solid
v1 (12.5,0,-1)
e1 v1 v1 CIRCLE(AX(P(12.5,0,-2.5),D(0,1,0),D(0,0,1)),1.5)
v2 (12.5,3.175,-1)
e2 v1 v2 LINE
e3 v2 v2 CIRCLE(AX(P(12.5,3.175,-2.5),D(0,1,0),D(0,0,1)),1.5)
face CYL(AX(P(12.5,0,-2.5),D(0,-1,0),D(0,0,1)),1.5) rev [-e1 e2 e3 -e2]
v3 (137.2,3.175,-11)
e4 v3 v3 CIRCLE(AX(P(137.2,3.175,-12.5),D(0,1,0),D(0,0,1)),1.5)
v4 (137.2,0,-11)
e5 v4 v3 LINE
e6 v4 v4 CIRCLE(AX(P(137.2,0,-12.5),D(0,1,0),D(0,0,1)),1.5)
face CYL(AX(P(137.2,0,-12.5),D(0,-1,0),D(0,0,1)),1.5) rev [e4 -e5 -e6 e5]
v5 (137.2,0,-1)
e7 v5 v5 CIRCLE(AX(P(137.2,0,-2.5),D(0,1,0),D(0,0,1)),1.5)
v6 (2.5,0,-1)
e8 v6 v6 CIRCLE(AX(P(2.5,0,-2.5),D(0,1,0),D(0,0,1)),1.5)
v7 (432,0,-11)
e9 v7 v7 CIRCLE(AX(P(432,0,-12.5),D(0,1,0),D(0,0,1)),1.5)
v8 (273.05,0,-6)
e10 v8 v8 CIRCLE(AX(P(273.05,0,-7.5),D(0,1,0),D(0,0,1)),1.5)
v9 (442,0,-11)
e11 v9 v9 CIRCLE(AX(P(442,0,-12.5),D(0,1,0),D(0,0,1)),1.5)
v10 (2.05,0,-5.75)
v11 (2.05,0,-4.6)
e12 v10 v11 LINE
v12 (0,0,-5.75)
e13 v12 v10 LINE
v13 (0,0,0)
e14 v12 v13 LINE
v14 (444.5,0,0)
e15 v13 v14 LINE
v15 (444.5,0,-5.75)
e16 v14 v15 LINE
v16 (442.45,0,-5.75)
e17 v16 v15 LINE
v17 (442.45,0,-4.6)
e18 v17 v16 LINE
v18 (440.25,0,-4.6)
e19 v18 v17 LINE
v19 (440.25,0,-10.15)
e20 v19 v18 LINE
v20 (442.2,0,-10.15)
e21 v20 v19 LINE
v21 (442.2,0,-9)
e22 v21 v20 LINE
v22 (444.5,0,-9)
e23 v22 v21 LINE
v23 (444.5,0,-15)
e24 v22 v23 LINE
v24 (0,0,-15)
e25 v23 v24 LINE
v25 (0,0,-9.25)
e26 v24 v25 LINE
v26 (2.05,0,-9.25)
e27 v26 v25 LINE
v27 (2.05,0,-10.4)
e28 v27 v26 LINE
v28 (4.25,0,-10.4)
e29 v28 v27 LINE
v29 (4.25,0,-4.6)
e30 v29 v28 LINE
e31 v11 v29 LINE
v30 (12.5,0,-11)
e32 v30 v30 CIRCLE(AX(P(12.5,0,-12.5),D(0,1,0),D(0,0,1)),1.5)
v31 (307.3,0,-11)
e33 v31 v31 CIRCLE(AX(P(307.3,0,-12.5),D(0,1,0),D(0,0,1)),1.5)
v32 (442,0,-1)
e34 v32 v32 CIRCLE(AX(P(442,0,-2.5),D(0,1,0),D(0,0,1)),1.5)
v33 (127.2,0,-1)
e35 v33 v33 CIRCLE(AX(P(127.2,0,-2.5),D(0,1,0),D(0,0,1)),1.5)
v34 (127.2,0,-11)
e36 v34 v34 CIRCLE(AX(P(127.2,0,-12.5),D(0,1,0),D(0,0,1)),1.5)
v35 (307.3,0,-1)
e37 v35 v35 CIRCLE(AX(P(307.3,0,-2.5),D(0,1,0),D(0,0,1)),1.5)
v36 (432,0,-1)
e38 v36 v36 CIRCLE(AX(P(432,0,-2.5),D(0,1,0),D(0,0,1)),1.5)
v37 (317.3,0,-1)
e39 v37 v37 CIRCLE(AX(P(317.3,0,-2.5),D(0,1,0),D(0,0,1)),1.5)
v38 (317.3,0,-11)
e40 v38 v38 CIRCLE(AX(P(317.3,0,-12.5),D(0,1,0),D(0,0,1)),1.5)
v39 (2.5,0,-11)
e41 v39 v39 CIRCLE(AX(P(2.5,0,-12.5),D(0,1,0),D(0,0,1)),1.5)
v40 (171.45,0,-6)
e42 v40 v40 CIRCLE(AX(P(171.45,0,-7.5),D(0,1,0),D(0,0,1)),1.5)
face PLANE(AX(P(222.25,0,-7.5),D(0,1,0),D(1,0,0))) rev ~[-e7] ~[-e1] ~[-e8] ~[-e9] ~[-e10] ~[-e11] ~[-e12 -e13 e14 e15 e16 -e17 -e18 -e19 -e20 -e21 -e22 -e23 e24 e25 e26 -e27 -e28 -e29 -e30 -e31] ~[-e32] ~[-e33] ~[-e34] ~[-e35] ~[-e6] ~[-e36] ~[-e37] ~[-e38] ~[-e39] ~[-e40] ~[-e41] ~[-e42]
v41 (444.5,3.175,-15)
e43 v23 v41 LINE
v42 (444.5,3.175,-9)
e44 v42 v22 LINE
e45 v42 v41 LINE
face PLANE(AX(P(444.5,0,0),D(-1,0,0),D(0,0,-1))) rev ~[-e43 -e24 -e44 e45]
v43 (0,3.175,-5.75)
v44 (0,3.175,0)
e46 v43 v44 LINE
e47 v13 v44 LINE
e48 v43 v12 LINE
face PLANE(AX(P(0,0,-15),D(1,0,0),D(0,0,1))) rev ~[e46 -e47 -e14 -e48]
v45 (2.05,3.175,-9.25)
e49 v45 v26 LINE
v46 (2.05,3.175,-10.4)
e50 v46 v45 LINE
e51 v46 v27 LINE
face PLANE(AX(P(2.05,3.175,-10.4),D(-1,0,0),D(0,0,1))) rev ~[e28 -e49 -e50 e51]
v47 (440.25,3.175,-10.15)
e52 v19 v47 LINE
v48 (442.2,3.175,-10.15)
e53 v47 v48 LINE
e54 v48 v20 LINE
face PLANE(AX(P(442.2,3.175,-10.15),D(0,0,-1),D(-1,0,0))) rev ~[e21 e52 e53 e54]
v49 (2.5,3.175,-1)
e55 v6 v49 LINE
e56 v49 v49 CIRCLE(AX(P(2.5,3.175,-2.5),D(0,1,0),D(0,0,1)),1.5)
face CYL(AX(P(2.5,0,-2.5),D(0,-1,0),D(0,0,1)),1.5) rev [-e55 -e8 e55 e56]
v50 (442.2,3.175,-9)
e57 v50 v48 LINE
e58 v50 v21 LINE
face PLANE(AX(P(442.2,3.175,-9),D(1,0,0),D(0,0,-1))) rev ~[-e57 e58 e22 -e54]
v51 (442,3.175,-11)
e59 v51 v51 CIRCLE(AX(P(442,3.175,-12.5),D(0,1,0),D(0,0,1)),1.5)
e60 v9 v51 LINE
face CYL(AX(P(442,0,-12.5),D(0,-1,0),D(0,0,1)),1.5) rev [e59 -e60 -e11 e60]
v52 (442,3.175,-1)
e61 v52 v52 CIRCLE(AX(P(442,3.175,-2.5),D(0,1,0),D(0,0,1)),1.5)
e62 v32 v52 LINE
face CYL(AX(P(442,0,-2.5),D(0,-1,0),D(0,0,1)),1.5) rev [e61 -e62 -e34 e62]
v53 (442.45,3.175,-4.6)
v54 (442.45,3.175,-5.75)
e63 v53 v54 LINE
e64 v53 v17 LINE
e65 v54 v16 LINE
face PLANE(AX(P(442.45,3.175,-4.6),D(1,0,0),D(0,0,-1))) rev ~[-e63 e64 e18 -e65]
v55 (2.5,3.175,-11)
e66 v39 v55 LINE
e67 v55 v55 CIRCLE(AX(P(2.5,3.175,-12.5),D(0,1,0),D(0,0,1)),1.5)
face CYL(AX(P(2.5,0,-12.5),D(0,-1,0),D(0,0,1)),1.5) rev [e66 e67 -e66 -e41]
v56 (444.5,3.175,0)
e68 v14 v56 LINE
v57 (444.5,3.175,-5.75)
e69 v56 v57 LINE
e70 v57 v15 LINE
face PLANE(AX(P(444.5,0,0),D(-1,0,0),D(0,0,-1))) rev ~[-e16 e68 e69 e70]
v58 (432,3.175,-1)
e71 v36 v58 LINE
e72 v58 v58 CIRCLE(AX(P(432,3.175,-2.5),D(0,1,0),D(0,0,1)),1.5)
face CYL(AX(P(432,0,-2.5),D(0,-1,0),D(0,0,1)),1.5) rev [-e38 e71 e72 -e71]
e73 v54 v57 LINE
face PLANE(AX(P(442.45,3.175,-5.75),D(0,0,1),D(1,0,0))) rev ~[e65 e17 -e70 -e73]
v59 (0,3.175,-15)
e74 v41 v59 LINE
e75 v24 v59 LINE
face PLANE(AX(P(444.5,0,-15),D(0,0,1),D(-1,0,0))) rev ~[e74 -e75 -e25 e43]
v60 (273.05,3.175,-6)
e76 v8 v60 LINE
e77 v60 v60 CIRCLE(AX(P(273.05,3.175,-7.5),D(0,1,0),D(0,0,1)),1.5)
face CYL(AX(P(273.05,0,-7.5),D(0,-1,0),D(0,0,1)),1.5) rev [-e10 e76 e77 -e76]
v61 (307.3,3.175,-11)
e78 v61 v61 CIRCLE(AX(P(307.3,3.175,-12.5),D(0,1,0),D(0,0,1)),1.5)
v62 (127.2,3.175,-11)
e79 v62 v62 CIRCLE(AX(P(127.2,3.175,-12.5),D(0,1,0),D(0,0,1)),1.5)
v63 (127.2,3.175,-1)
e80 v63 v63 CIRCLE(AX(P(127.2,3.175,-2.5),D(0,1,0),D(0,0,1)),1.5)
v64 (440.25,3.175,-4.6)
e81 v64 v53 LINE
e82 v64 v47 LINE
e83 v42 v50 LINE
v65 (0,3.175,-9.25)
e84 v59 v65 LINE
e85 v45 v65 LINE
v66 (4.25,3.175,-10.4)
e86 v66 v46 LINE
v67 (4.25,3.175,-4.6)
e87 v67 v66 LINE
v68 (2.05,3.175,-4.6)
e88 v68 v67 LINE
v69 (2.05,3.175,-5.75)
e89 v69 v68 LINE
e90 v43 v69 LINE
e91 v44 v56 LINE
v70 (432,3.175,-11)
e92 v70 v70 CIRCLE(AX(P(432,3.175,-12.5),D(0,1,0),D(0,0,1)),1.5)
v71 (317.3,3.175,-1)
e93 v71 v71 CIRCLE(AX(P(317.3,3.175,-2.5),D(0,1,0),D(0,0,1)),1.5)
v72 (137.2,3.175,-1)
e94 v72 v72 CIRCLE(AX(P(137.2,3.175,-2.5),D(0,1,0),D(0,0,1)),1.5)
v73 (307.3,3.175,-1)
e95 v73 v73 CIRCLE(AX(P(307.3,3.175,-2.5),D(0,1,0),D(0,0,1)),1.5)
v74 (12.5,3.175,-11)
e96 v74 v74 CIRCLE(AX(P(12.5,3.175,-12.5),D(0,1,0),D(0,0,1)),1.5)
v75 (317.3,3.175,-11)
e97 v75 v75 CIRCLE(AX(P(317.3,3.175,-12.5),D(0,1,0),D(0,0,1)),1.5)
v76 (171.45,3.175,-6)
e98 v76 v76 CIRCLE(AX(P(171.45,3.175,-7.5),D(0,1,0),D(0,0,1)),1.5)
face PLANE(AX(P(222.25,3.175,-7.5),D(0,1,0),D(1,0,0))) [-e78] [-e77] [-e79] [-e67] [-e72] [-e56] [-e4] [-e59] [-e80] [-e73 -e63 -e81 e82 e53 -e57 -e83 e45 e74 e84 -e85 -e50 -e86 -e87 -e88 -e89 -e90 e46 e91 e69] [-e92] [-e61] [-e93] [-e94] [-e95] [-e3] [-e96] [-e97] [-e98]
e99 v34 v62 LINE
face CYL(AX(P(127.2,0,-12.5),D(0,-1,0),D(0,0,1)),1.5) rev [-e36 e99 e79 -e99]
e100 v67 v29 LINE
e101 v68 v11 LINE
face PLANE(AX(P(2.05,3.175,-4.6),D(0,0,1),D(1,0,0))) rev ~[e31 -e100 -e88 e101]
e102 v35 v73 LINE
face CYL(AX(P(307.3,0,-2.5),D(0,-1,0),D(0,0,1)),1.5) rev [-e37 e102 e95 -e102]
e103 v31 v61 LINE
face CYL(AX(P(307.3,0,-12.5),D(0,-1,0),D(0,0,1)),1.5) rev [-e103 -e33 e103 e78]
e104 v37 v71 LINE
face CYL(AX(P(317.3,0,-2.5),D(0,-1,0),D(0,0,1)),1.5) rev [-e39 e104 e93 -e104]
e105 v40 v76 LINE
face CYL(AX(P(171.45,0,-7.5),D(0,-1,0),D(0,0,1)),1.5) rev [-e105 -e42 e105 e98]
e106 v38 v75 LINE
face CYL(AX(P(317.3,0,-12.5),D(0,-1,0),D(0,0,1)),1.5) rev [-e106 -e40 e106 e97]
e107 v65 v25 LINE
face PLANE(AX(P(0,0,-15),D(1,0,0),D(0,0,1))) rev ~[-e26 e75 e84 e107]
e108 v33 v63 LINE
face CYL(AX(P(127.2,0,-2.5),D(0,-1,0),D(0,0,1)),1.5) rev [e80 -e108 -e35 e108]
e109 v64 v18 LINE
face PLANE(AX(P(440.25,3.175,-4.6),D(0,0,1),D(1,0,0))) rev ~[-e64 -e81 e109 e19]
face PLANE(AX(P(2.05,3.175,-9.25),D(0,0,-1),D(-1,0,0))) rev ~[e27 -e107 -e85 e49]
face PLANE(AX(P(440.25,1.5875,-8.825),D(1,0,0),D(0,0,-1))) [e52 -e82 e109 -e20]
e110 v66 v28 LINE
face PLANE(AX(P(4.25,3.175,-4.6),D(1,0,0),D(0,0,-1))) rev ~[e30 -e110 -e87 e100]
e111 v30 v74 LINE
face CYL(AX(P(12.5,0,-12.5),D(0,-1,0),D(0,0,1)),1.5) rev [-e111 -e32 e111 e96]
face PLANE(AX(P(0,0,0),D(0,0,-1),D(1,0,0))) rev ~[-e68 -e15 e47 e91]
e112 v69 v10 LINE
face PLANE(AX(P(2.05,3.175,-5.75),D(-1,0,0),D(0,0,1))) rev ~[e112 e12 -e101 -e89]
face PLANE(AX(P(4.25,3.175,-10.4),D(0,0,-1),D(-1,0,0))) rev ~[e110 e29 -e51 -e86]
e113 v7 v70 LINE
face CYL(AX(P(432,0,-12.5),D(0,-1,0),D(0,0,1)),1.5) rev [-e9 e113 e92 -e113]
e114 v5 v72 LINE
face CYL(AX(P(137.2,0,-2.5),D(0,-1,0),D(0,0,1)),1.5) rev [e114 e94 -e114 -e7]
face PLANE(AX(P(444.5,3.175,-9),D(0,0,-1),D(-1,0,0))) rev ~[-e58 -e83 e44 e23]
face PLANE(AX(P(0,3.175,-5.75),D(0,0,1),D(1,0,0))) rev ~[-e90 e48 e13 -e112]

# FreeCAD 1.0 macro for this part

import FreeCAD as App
import Part
import Sketcher

doc = App.newDocument("Part")
body = doc.addObject("PartDesign::Body", "Body")

sketch1 = body.newObject("Sketcher::SketchObject", "Sketch")
sketch1.AttachmentSupport = (doc.getObject("XZ_Plane"), [""])
sketch1.MapMode = "FlatFace"
sketch1.addGeometry(Part.LineSegment(App.Vector(0, 0, 0), App.Vector(444.5, 0, 0)), False)
sketch1.addGeometry(Part.LineSegment(App.Vector(444.5, 0, 0), App.Vector(444.5, -15, 0)), False)
sketch1.addGeometry(Part.LineSegment(App.Vector(444.5, -15, 0), App.Vector(0, -15, 0)), False)
sketch1.addGeometry(Part.LineSegment(App.Vector(0, -15, 0), App.Vector(0, 0, 0)), False)
sketch1.addGeometry(Part.Circle(App.Vector(2.5, -2.5, 0), App.Vector(0, 0, 1), 1.5), False)
sketch1.addGeometry(Part.Circle(App.Vector(12.5, -2.5, 0), App.Vector(0, 0, 1), 1.5), False)
sketch1.addGeometry(Part.Circle(App.Vector(127.2, -2.5, 0), App.Vector(0, 0, 1), 1.5), False)
sketch1.addGeometry(Part.Circle(App.Vector(137.2, -2.5, 0), App.Vector(0, 0, 1), 1.5), False)
sketch1.addGeometry(Part.Circle(App.Vector(307.3, -2.5, 0), App.Vector(0, 0, 1), 1.5), False)
sketch1.addGeometry(Part.Circle(App.Vector(317.3, -2.5, 0), App.Vector(0, 0, 1), 1.5), False)
sketch1.addGeometry(Part.Circle(App.Vector(432, -2.5, 0), App.Vector(0, 0, 1), 1.5), False)
sketch1.addGeometry(Part.Circle(App.Vector(442, -2.5, 0), App.Vector(0, 0, 1), 1.5), False)
sketch1.addGeometry(Part.Circle(App.Vector(171.4, -7.5, 0), App.Vector(0, 0, 1), 1.5), False)
sketch1.addGeometry(Part.Circle(App.Vector(2.5, -12.5, 0), App.Vector(0, 0, 1), 1.5), False)
sketch1.addGeometry(Part.Circle(App.Vector(12.5, -12.5, 0), App.Vector(0, 0, 1), 1.5), False)
sketch1.addGeometry(Part.Circle(App.Vector(127.2, -12.5, 0), App.Vector(0, 0, 1), 1.5), False)
sketch1.addGeometry(Part.Circle(App.Vector(137.2, -12.5, 0), App.Vector(0, 0, 1), 1.5), False)
sketch1.addGeometry(Part.Circle(App.Vector(273.1, -7.5, 0), App.Vector(0, 0, 1), 1.5), False)
sketch1.addGeometry(Part.Circle(App.Vector(307.3, -12.5, 0), App.Vector(0, 0, 1), 1.5), False)
sketch1.addGeometry(Part.Circle(App.Vector(317.3, -12.5, 0), App.Vector(0, 0, 1), 1.5), False)
sketch1.addGeometry(Part.Circle(App.Vector(432, -12.5, 0), App.Vector(0, 0, 1), 1.5), False)
sketch1.addGeometry(Part.Circle(App.Vector(442, -12.5, 0), App.Vector(0, 0, 1), 1.5), False)
sketch1.addConstraint(Sketcher.Constraint("Coincident", 0, 2, 1, 1))
sketch1.addConstraint(Sketcher.Constraint("Coincident", 1, 2, 2, 1))
sketch1.addConstraint(Sketcher.Constraint("Coincident", 2, 2, 3, 1))
sketch1.addConstraint(Sketcher.Constraint("Coincident", 3, 2, 0, 1))
sketch1.addConstraint(Sketcher.Constraint("Horizontal", 0))
sketch1.addConstraint(Sketcher.Constraint("Vertical", 1))
sketch1.addConstraint(Sketcher.Constraint("Horizontal", 2))
sketch1.addConstraint(Sketcher.Constraint("Vertical", 3))
sketch1.addConstraint(Sketcher.Constraint("Coincident", 3, 2, -1, 1))
sketch1.addConstraint(Sketcher.Constraint("Equal", 4, 5))
sketch1.addConstraint(Sketcher.Constraint("Equal", 5, 6))
sketch1.addConstraint(Sketcher.Constraint("Equal", 6, 7))
sketch1.addConstraint(Sketcher.Constraint("Equal", 7, 8))
sketch1.addConstraint(Sketcher.Constraint("Equal", 8, 9))
sketch1.addConstraint(Sketcher.Constraint("Equal", 9, 10))
sketch1.addConstraint(Sketcher.Constraint("Equal", 10, 11))
sketch1.addConstraint(Sketcher.Constraint("Equal", 11, 12))
sketch1.addConstraint(Sketcher.Constraint("Equal", 12, 13))
sketch1.addConstraint(Sketcher.Constraint("Equal", 13, 14))
sketch1.addConstraint(Sketcher.Constraint("Equal", 14, 15))
sketch1.addConstraint(Sketcher.Constraint("Equal", 15, 16))
sketch1.addConstraint(Sketcher.Constraint("Equal", 16, 17))
sketch1.addConstraint(Sketcher.Constraint("Equal", 17, 18))
sketch1.addConstraint(Sketcher.Constraint("Equal", 18, 19))
sketch1.addConstraint(Sketcher.Constraint("Equal", 19, 20))
sketch1.addConstraint(Sketcher.Constraint("Equal", 20, 21))
sketch1.addConstraint(Sketcher.Constraint("Horizontal", 4, 3, 5, 3))
sketch1.addConstraint(Sketcher.Constraint("Horizontal", 5, 3, 6, 3))
sketch1.addConstraint(Sketcher.Constraint("Horizontal", 6, 3, 7, 3))
sketch1.addConstraint(Sketcher.Constraint("Horizontal", 7, 3, 8, 3))
sketch1.addConstraint(Sketcher.Constraint("Horizontal", 8, 3, 9, 3))
sketch1.addConstraint(Sketcher.Constraint("Horizontal", 9, 3, 10, 3))
sketch1.addConstraint(Sketcher.Constraint("Horizontal", 10, 3, 11, 3))
sketch1.addConstraint(Sketcher.Constraint("Horizontal", 13, 3, 14, 3))
sketch1.addConstraint(Sketcher.Constraint("Horizontal", 14, 3, 15, 3))
sketch1.addConstraint(Sketcher.Constraint("Horizontal", 15, 3, 16, 3))
sketch1.addConstraint(Sketcher.Constraint("Horizontal", 12, 3, 17, 3))
sketch1.addConstraint(Sketcher.Constraint("Horizontal", 16, 3, 18, 3))
sketch1.addConstraint(Sketcher.Constraint("Horizontal", 18, 3, 19, 3))
sketch1.addConstraint(Sketcher.Constraint("Horizontal", 19, 3, 20, 3))
sketch1.addConstraint(Sketcher.Constraint("Horizontal", 20, 3, 21, 3))
sketch1.addConstraint(Sketcher.Constraint("Vertical", 4, 3, 13, 3))
sketch1.addConstraint(Sketcher.Constraint("Vertical", 5, 3, 14, 3))
sketch1.addConstraint(Sketcher.Constraint("Vertical", 6, 3, 15, 3))
sketch1.addConstraint(Sketcher.Constraint("Vertical", 7, 3, 16, 3))
sketch1.addConstraint(Sketcher.Constraint("Vertical", 8, 3, 18, 3))
sketch1.addConstraint(Sketcher.Constraint("Vertical", 9, 3, 19, 3))
sketch1.addConstraint(Sketcher.Constraint("Vertical", 10, 3, 20, 3))
sketch1.addConstraint(Sketcher.Constraint("Vertical", 11, 3, 21, 3))
sketch1.addConstraint(Sketcher.Constraint("Diameter", 4, 3.0))
sketch1.addConstraint(Sketcher.Constraint("DistanceY", 1, 2, 1, 1, 15.0))
sketch1.addConstraint(Sketcher.Constraint("DistanceX", 0, 1, 0, 2, 444.5))
sketch1.addConstraint(Sketcher.Constraint("DistanceX", -1, 1, 10, 3, 432.0))
sketch1.addConstraint(Sketcher.Constraint("DistanceX", -1, 1, 11, 3, 442.0))
sketch1.addConstraint(Sketcher.Constraint("DistanceX", 4, 3, 5, 3, 10.0))
sketch1.addConstraint(Sketcher.Constraint("DistanceX", 6, 3, 7, 3, 10.0))
sketch1.addConstraint(Sketcher.Constraint("DistanceX", 8, 3, 9, 3, 10.0))
sketch1.addConstraint(Sketcher.Constraint("DistanceY", 12, 3, 7, 3, 5.0))
sketch1.addConstraint(Sketcher.Constraint("DistanceY", 13, 3, 4, 3, 10.0))
sketch1.addConstraint(Sketcher.Constraint("DistanceX", -1, 1, 4, 3, 2.5))
sketch1.addConstraint(Sketcher.Constraint("DistanceY", 4, 3, -1, 1, 2.5))
sketch1.addConstraint(Sketcher.Constraint("DistanceX", -1, 1, 6, 3, 127.2))
sketch1.addConstraint(Sketcher.Constraint("DistanceX", -1, 1, 8, 3, 307.3))
sketch1.addConstraint(Sketcher.Constraint("DistanceX", 12, 3, 17, 3, 101.6))
sketch1.addConstraint(Sketcher.Constraint("DistanceX", -1, 1, 12, 3, 171.45))
pad1 = body.newObject("PartDesign::Pad", "Pad")
pad1.Profile = sketch1
pad1.Length = 3.175
pad1.Reversed = True

sketch2 = body.newObject("Sketcher::SketchObject", "Sketch001")
sketch2.AttachmentSupport = (doc.getObject("XZ_Plane"), [""])
sketch2.MapMode = "FlatFace"
sketch2.AttachmentOffset = App.Placement(App.Vector(0, 0, -3.175), App.Rotation())
sketch2.addGeometry(Part.LineSegment(App.Vector(444.5, -5.75, 0), App.Vector(444.5, -9, 0)), False)
sketch2.addGeometry(Part.LineSegment(App.Vector(444.5, -9, 0), App.Vector(442.2, -9, 0)), False)
sketch2.addGeometry(Part.LineSegment(App.Vector(442.2, -9, 0), App.Vector(442.2, -10.15, 0)), False)
sketch2.addGeometry(Part.LineSegment(App.Vector(442.2, -10.15, 0), App.Vector(440.5, -10.15, 0)), False)
sketch2.addGeometry(Part.LineSegment(App.Vector(440.5, -10.15, 0), App.Vector(440.5, -7.5, 0)), False)
sketch2.addGeometry(Part.LineSegment(App.Vector(440.5, -7.5, 0), App.Vector(440.25, -7.5, 0)), False)
sketch2.addGeometry(Part.LineSegment(App.Vector(440.25, -7.5, 0), App.Vector(440.25, -4.6, 0)), False)
sketch2.addGeometry(Part.LineSegment(App.Vector(440.25, -4.6, 0), App.Vector(442.45, -4.6, 0)), False)
sketch2.addGeometry(Part.LineSegment(App.Vector(442.45, -4.6, 0), App.Vector(442.45, -5.75, 0)), False)
sketch2.addGeometry(Part.LineSegment(App.Vector(442.45, -5.75, 0), App.Vector(444.5, -5.75, 0)), False)
sketch2.addGeometry(Part.LineSegment(App.Vector(2.05, -9.25, 0), App.Vector(0, -9.25, 0)), False)
sketch2.addGeometry(Part.LineSegment(App.Vector(0, -9.25, 0), App.Vector(0, -5.75, 0)), False)
sketch2.addGeometry(Part.LineSegment(App.Vector(0, -5.75, 0), App.Vector(2.05, -5.75, 0)), False)
sketch2.addGeometry(Part.LineSegment(App.Vector(2.05, -5.75, 0), App.Vector(2.05, -4.6, 0)), False)
sketch2.addGeometry(Part.LineSegment(App.Vector(2.05, -4.6, 0), App.Vector(4.25, -4.6, 0)), False)
sketch2.addGeometry(Part.LineSegment(App.Vector(4.25, -4.6, 0), App.Vector(4.25, -10.4, 0)), False)
sketch2.addGeometry(Part.LineSegment(App.Vector(4.25, -10.4, 0), App.Vector(2.05, -10.4, 0)), False)
sketch2.addGeometry(Part.LineSegment(App.Vector(2.05, -10.4, 0), App.Vector(2.05, -9.25, 0)), False)
sketch2.addConstraint(Sketcher.Constraint("Coincident", 0, 2, 1, 1))
sketch2.addConstraint(Sketcher.Constraint("Coincident", 1, 2, 2, 1))
sketch2.addConstraint(Sketcher.Constraint("Coincident", 2, 2, 3, 1))
sketch2.addConstraint(Sketcher.Constraint("Coincident", 3, 2, 4, 1))
sketch2.addConstraint(Sketcher.Constraint("Coincident", 4, 2, 5, 1))
sketch2.addConstraint(Sketcher.Constraint("Coincident", 5, 2, 6, 1))
sketch2.addConstraint(Sketcher.Constraint("Coincident", 6, 2, 7, 1))
sketch2.addConstraint(Sketcher.Constraint("Coincident", 7, 2, 8, 1))
sketch2.addConstraint(Sketcher.Constraint("Coincident", 8, 2, 9, 1))
sketch2.addConstraint(Sketcher.Constraint("Coincident", 9, 2, 0, 1))
sketch2.addConstraint(Sketcher.Constraint("Coincident", 10, 2, 11, 1))
sketch2.addConstraint(Sketcher.Constraint("Coincident", 11, 2, 12, 1))
sketch2.addConstraint(Sketcher.Constraint("Coincident", 12, 2, 13, 1))
sketch2.addConstraint(Sketcher.Constraint("Coincident", 13, 2, 14, 1))
sketch2.addConstraint(Sketcher.Constraint("Coincident", 14, 2, 15, 1))
sketch2.addConstraint(Sketcher.Constraint("Coincident", 15, 2, 16, 1))
sketch2.addConstraint(Sketcher.Constraint("Coincident", 16, 2, 17, 1))
sketch2.addConstraint(Sketcher.Constraint("Coincident", 17, 2, 10, 1))
sketch2.addConstraint(Sketcher.Constraint("Vertical", 0))
sketch2.addConstraint(Sketcher.Constraint("Horizontal", 1))
sketch2.addConstraint(Sketcher.Constraint("Vertical", 2))
sketch2.addConstraint(Sketcher.Constraint("Horizontal", 3))
sketch2.addConstraint(Sketcher.Constraint("Vertical", 4))
sketch2.addConstraint(Sketcher.Constraint("Horizontal", 5))
sketch2.addConstraint(Sketcher.Constraint("Vertical", 6))
sketch2.addConstraint(Sketcher.Constraint("Horizontal", 7))
sketch2.addConstraint(Sketcher.Constraint("Vertical", 8))
sketch2.addConstraint(Sketcher.Constraint("Horizontal", 9))
sketch2.addConstraint(Sketcher.Constraint("Horizontal", 10))
sketch2.addConstraint(Sketcher.Constraint("Vertical", 11))
sketch2.addConstraint(Sketcher.Constraint("Horizontal", 12))
sketch2.addConstraint(Sketcher.Constraint("Vertical", 13))
sketch2.addConstraint(Sketcher.Constraint("Horizontal", 14))
sketch2.addConstraint(Sketcher.Constraint("Vertical", 15))
sketch2.addConstraint(Sketcher.Constraint("Horizontal", 16))
sketch2.addConstraint(Sketcher.Constraint("Vertical", 17))
sketch2.addConstraint(Sketcher.Constraint("PointOnObject", 10, 2, -2))
sketch2.addConstraint(Sketcher.Constraint("Horizontal", 9, 2, 11, 2))
sketch2.addConstraint(Sketcher.Constraint("Horizontal", 7, 2, 13, 2))
sketch2.addConstraint(Sketcher.Constraint("Vertical", 13, 2, 16, 2))
sketch2.addConstraint(Sketcher.Constraint("Equal", 9, 10))
sketch2.addConstraint(Sketcher.Constraint("Equal", 7, 14))
sketch2.addConstraint(Sketcher.Constraint("Equal", 2, 8))
sketch2.addConstraint(Sketcher.Constraint("Equal", 13, 17))
sketch2.addConstraint(Sketcher.Constraint("DistanceX", 1, 2, 1, 1, 2.3))
sketch2.addConstraint(Sketcher.Constraint("DistanceX", 3, 2, 3, 1, 1.7))
sketch2.addConstraint(Sketcher.Constraint("DistanceX", 7, 1, 7, 2, 2.2))
sketch2.addConstraint(Sketcher.Constraint("DistanceY", 6, 1, 6, 2, 2.9))
sketch2.addConstraint(Sketcher.Constraint("DistanceY", 11, 1, 11, 2, 3.5))
sketch2.addConstraint(Sketcher.Constraint("DistanceY", 15, 2, 15, 1, 5.8))
sketch2.addConstraint(Sketcher.Constraint("DistanceY", 0, 2, -1, 1, 9.0))
sketch2.addConstraint(Sketcher.Constraint("DistanceX", 14, 2, 6, 2, 436.0))
sketch2.addConstraint(Sketcher.Constraint("DistanceX", 5, 2, 5, 1, 0.25))
sketch2.addConstraint(Sketcher.Constraint("DistanceY", 0, 2, 0, 1, 3.25))
pocket1 = body.newObject("PartDesign::Pocket", "Pocket")
pocket1.Profile = sketch2
pocket1.Length = 10
pocket1.Reversed = True

sketch3 = body.newObject("Sketcher::SketchObject", "Sketch002")
sketch3.AttachmentSupport = (doc.getObject("YZ_Plane"), [""])
sketch3.MapMode = "FlatFace"
sketch3.AttachmentOffset = App.Placement(App.Vector(0, 0, 440.5), App.Rotation())
sketch3.addGeometry(Part.LineSegment(App.Vector(3.2, -7.5, 0), App.Vector(0, -7.5, 0)), False)
sketch3.addGeometry(Part.LineSegment(App.Vector(0, -7.5, 0), App.Vector(0, -10.2, 0)), False)
sketch3.addGeometry(Part.LineSegment(App.Vector(0, -10.2, 0), App.Vector(3.2, -10.2, 0)), False)
sketch3.addGeometry(Part.LineSegment(App.Vector(3.2, -10.2, 0), App.Vector(3.2, -7.5, 0)), False)
sketch3.addConstraint(Sketcher.Constraint("Coincident", 0, 2, 1, 1))
sketch3.addConstraint(Sketcher.Constraint("Coincident", 1, 2, 2, 1))
sketch3.addConstraint(Sketcher.Constraint("Coincident", 2, 2, 3, 1))
sketch3.addConstraint(Sketcher.Constraint("Coincident", 3, 2, 0, 1))
sketch3.addConstraint(Sketcher.Constraint("Horizontal", 0))
sketch3.addConstraint(Sketcher.Constraint("Vertical", 1))
sketch3.addConstraint(Sketcher.Constraint("Horizontal", 2))
sketch3.addConstraint(Sketcher.Constraint("Vertical", 3))
sketch3.addConstraint(Sketcher.Constraint("PointOnObject", 0, 2, -2))
sketch3.addConstraint(Sketcher.Constraint("DistanceY", 1, 2, 1, 1, 2.65))
sketch3.addConstraint(Sketcher.Constraint("DistanceY", 0, 2, -1, 1, 7.5))
sketch3.addConstraint(Sketcher.Constraint("DistanceX", 0, 2, 0, 1, 3.175))
pocket2 = body.newObject("PartDesign::Pocket", "Pocket001")
pocket2.Profile = sketch3
pocket2.Length = 0.25

doc.recompute()
